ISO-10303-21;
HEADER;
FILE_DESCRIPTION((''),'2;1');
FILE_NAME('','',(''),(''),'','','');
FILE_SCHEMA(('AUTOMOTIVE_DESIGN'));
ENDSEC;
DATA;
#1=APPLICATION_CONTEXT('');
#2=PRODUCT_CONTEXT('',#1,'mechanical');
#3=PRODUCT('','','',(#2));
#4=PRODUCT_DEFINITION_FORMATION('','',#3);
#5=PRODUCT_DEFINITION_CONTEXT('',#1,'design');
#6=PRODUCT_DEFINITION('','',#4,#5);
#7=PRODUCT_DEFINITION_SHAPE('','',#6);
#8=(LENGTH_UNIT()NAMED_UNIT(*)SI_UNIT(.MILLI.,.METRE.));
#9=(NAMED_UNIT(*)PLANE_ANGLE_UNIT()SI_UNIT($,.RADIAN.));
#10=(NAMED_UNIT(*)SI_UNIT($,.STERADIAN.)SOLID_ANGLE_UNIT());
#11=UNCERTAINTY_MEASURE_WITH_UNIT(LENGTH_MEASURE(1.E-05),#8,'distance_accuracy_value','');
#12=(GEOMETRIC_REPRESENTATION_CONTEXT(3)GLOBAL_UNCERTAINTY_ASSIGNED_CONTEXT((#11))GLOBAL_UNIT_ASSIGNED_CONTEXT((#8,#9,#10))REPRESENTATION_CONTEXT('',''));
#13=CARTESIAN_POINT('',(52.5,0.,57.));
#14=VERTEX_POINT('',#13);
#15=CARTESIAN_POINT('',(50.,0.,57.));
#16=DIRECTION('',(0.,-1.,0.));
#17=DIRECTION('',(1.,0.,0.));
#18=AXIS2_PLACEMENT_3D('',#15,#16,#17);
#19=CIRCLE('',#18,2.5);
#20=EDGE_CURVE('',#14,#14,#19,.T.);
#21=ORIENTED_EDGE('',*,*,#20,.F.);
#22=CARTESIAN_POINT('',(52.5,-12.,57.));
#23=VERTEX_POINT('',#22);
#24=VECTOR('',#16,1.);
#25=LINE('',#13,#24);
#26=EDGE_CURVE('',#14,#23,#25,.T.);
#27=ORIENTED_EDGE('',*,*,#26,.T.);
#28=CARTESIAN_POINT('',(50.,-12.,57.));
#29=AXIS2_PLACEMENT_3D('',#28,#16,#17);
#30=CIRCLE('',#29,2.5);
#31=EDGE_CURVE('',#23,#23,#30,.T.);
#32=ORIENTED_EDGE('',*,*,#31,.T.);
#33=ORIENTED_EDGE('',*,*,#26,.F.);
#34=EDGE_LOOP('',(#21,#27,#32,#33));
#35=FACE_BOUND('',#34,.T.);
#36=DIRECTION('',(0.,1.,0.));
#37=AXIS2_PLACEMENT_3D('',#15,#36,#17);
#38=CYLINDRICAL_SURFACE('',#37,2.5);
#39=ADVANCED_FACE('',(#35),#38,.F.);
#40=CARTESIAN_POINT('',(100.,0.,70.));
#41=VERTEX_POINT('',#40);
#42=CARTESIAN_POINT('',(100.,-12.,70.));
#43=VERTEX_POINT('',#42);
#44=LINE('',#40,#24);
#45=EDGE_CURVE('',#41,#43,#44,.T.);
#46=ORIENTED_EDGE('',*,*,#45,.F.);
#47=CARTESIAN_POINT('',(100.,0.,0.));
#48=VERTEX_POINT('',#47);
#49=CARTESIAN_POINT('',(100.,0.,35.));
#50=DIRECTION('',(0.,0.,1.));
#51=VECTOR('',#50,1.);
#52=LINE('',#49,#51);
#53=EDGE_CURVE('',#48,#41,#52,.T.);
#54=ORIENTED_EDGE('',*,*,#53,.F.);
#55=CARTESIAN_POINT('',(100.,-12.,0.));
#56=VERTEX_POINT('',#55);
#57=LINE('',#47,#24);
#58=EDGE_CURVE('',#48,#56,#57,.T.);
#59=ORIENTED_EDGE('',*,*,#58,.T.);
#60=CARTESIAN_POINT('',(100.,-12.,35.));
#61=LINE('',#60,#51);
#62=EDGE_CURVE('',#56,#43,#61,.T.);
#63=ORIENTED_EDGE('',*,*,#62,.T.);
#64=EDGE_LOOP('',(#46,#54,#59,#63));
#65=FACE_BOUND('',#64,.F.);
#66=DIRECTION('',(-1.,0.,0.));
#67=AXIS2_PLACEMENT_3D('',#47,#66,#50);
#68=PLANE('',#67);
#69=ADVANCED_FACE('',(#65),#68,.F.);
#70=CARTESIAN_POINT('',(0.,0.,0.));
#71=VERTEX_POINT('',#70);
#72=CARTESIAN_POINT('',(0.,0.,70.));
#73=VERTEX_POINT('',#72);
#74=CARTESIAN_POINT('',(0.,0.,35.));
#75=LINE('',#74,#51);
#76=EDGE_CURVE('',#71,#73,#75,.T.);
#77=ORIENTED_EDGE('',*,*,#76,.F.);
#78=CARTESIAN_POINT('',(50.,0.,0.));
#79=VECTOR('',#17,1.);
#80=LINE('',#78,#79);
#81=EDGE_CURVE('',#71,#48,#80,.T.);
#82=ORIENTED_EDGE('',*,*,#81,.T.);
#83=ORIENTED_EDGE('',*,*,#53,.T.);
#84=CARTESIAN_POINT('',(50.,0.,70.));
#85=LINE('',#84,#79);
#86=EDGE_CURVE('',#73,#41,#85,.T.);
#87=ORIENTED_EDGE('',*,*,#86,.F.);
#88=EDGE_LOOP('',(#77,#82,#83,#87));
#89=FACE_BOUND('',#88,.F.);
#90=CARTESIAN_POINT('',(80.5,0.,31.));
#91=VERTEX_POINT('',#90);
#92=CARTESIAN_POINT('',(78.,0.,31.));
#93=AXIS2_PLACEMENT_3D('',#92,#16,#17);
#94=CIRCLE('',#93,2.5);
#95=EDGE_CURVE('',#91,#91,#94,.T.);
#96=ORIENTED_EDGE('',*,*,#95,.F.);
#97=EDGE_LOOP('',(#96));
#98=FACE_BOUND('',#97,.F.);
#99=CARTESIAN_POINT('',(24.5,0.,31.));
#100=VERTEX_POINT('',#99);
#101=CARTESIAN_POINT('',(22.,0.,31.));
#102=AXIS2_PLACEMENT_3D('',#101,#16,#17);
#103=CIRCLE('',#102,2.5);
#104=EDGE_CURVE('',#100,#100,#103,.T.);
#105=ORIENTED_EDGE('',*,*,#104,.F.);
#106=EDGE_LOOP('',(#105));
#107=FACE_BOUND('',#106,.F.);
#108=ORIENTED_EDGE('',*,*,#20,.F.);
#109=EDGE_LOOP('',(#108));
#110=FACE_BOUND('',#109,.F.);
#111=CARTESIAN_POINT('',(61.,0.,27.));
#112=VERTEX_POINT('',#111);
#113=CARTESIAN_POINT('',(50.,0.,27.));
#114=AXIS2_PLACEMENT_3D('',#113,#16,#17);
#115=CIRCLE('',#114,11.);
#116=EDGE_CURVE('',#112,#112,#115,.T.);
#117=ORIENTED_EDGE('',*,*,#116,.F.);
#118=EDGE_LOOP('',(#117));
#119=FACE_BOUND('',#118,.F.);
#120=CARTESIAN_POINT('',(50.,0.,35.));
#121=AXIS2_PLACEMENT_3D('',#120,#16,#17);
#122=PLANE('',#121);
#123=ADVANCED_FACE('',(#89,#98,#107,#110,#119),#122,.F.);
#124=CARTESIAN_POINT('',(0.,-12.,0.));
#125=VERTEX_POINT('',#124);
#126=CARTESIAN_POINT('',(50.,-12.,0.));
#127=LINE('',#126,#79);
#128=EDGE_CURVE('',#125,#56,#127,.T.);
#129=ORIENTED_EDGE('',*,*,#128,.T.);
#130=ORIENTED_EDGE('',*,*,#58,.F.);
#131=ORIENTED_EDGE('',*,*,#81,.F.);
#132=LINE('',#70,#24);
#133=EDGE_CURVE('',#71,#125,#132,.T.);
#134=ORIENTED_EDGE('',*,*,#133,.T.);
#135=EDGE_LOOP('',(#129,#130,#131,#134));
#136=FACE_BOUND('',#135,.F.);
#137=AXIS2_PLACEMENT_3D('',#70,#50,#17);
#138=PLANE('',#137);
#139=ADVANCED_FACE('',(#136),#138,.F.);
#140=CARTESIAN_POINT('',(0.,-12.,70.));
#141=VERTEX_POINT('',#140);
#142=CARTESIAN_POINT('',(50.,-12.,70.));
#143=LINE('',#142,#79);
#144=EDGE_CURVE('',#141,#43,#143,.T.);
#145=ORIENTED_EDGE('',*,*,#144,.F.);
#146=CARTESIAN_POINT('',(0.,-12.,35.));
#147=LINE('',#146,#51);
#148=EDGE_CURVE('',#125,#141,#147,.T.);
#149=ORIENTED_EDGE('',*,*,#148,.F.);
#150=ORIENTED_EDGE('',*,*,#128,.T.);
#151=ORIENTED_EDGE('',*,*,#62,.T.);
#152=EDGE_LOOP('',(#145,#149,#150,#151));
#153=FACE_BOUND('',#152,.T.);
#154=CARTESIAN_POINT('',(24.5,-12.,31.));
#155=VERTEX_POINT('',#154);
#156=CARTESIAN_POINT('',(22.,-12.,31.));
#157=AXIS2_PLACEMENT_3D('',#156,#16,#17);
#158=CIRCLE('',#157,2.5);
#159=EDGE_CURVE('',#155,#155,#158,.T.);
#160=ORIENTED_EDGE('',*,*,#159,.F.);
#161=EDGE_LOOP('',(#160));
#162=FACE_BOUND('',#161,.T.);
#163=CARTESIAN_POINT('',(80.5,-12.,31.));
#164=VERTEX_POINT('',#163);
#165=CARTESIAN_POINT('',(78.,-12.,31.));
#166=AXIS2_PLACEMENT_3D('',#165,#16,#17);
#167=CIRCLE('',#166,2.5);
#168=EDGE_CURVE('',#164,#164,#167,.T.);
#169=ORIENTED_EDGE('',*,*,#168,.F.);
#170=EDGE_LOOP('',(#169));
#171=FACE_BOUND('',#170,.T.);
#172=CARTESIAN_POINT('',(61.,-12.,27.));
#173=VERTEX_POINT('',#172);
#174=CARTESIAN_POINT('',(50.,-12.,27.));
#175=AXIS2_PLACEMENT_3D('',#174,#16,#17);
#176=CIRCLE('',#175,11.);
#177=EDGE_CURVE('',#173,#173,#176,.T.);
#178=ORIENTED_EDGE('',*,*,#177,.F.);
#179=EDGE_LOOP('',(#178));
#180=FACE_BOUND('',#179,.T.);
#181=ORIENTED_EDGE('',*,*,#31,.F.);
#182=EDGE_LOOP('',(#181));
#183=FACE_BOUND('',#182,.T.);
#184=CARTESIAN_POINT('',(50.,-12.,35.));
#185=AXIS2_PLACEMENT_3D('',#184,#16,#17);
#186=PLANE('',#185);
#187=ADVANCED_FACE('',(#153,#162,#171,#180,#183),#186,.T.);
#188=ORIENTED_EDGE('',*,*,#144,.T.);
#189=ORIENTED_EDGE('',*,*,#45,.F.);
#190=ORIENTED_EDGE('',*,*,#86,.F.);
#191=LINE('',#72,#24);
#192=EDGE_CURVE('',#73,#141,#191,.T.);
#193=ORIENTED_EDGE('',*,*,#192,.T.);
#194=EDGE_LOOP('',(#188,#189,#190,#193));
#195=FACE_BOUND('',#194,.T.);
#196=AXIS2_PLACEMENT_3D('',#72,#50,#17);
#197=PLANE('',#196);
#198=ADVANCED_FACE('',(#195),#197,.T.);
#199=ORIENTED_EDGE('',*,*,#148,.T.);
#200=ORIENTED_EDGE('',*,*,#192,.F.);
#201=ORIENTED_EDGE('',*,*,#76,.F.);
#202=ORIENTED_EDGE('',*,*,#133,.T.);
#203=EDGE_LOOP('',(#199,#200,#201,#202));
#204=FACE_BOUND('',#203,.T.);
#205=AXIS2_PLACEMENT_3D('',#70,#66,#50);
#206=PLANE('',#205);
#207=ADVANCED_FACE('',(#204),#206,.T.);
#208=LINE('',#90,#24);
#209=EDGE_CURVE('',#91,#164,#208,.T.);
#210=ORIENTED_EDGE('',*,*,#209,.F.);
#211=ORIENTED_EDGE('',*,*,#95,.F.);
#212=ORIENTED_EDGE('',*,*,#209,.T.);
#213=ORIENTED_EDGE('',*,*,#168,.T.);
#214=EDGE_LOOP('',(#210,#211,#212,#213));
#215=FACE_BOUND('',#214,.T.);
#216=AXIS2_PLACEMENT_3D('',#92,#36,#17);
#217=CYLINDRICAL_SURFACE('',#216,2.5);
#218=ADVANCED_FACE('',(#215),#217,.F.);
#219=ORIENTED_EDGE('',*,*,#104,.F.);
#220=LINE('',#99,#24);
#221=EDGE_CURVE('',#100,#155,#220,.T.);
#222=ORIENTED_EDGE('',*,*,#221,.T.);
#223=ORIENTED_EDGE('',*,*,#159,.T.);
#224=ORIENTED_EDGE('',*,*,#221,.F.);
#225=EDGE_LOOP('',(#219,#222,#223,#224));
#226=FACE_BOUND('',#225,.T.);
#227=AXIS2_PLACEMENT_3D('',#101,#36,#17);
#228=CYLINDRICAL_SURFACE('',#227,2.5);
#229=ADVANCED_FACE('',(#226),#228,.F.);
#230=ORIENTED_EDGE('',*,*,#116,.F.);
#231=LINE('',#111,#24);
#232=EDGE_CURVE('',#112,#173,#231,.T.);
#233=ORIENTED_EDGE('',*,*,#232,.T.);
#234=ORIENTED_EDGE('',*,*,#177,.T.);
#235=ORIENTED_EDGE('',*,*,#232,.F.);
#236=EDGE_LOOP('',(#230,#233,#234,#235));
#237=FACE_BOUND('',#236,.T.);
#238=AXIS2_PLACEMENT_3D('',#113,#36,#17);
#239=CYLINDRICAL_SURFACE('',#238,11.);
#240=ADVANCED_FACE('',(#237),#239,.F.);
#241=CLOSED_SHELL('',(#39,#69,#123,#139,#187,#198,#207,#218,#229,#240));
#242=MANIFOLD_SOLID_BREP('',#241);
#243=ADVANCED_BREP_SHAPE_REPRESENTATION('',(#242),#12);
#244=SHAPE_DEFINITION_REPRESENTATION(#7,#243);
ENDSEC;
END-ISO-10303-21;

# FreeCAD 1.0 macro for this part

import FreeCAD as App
import Part
import Sketcher

V = App.Vector


def add_polygon(sketch, points):
    """Adds a closed chain of lines whose ends are joined by coincident constraints."""
    first, n = sketch.GeometryCount, len(points)
    for a, b in zip(points, points[1:] + points[:1]):
        sketch.addGeometry(Part.LineSegment(App.Vector(*a, 0), App.Vector(*b, 0)), False)
    for i in range(n):
        sketch.addConstraint(Sketcher.Constraint("Coincident", first + i, 2, first + (i + 1) % n, 1))

doc = App.newDocument("Part")
body = doc.addObject("PartDesign::Body", "Body")

# Sketch on XZ plane
sketch1 = body.newObject("Sketcher::SketchObject", "Sketch")
sketch1.AttachmentSupport = (doc.getObject("XZ_Plane"), [""])
sketch1.MapMode = "FlatFace"
add_polygon(sketch1, [(0, 70), (0, 0), (100, 0), (100, 70)])  # lines 0-3
sketch1.addGeometry(Part.Circle(V(22, 31, 0), V(0, 0, 1), 2.5), False)  # 4
sketch1.addGeometry(Part.Circle(V(50, 27, 0), V(0, 0, 1), 11), False)  # 5
sketch1.addGeometry(Part.Circle(V(78, 31, 0), V(0, 0, 1), 2.5), False)  # 6
sketch1.addGeometry(Part.Circle(V(50, 57, 0), V(0, 0, 1), 2.5), False)  # 7
sketch1.addConstraint(Sketcher.Constraint("Vertical", 0))
sketch1.addConstraint(Sketcher.Constraint("Horizontal", 1))
sketch1.addConstraint(Sketcher.Constraint("Vertical", 2))
sketch1.addConstraint(Sketcher.Constraint("Horizontal", 3))
sketch1.addConstraint(Sketcher.Constraint("Coincident", 0, 2, -1, 1))
sketch1.addConstraint(Sketcher.Constraint("Equal", 4, 6))
sketch1.addConstraint(Sketcher.Constraint("Equal", 6, 7))
sketch1.addConstraint(Sketcher.Constraint("Horizontal", 4, 3, 6, 3))
sketch1.addConstraint(Sketcher.Constraint("Vertical", 5, 3, 7, 3))
sketch1.addConstraint(Sketcher.Constraint("Diameter", 4, 5.0))
sketch1.addConstraint(Sketcher.Constraint("Diameter", 5, 22.0))
sketch1.addConstraint(Sketcher.Constraint("DistanceX", 1, 1, 1, 2, 100.0))
sketch1.addConstraint(Sketcher.Constraint("DistanceY", 0, 2, 0, 1, 70.0))
sketch1.addConstraint(Sketcher.Constraint("DistanceX", -1, 1, 4, 3, 22.0))
sketch1.addConstraint(Sketcher.Constraint("DistanceY", -1, 1, 4, 3, 31.0))
sketch1.addConstraint(Sketcher.Constraint("DistanceX", -1, 1, 5, 3, 50.0))
sketch1.addConstraint(Sketcher.Constraint("DistanceY", -1, 1, 5, 3, 27.0))
sketch1.addConstraint(Sketcher.Constraint("DistanceX", -1, 1, 6, 3, 78.0))
sketch1.addConstraint(Sketcher.Constraint("DistanceY", -1, 1, 7, 3, 57.0))
pad1 = body.newObject("PartDesign::Pad", "Pad")
pad1.Profile = sketch1
pad1.Length = 12

doc.recompute()
